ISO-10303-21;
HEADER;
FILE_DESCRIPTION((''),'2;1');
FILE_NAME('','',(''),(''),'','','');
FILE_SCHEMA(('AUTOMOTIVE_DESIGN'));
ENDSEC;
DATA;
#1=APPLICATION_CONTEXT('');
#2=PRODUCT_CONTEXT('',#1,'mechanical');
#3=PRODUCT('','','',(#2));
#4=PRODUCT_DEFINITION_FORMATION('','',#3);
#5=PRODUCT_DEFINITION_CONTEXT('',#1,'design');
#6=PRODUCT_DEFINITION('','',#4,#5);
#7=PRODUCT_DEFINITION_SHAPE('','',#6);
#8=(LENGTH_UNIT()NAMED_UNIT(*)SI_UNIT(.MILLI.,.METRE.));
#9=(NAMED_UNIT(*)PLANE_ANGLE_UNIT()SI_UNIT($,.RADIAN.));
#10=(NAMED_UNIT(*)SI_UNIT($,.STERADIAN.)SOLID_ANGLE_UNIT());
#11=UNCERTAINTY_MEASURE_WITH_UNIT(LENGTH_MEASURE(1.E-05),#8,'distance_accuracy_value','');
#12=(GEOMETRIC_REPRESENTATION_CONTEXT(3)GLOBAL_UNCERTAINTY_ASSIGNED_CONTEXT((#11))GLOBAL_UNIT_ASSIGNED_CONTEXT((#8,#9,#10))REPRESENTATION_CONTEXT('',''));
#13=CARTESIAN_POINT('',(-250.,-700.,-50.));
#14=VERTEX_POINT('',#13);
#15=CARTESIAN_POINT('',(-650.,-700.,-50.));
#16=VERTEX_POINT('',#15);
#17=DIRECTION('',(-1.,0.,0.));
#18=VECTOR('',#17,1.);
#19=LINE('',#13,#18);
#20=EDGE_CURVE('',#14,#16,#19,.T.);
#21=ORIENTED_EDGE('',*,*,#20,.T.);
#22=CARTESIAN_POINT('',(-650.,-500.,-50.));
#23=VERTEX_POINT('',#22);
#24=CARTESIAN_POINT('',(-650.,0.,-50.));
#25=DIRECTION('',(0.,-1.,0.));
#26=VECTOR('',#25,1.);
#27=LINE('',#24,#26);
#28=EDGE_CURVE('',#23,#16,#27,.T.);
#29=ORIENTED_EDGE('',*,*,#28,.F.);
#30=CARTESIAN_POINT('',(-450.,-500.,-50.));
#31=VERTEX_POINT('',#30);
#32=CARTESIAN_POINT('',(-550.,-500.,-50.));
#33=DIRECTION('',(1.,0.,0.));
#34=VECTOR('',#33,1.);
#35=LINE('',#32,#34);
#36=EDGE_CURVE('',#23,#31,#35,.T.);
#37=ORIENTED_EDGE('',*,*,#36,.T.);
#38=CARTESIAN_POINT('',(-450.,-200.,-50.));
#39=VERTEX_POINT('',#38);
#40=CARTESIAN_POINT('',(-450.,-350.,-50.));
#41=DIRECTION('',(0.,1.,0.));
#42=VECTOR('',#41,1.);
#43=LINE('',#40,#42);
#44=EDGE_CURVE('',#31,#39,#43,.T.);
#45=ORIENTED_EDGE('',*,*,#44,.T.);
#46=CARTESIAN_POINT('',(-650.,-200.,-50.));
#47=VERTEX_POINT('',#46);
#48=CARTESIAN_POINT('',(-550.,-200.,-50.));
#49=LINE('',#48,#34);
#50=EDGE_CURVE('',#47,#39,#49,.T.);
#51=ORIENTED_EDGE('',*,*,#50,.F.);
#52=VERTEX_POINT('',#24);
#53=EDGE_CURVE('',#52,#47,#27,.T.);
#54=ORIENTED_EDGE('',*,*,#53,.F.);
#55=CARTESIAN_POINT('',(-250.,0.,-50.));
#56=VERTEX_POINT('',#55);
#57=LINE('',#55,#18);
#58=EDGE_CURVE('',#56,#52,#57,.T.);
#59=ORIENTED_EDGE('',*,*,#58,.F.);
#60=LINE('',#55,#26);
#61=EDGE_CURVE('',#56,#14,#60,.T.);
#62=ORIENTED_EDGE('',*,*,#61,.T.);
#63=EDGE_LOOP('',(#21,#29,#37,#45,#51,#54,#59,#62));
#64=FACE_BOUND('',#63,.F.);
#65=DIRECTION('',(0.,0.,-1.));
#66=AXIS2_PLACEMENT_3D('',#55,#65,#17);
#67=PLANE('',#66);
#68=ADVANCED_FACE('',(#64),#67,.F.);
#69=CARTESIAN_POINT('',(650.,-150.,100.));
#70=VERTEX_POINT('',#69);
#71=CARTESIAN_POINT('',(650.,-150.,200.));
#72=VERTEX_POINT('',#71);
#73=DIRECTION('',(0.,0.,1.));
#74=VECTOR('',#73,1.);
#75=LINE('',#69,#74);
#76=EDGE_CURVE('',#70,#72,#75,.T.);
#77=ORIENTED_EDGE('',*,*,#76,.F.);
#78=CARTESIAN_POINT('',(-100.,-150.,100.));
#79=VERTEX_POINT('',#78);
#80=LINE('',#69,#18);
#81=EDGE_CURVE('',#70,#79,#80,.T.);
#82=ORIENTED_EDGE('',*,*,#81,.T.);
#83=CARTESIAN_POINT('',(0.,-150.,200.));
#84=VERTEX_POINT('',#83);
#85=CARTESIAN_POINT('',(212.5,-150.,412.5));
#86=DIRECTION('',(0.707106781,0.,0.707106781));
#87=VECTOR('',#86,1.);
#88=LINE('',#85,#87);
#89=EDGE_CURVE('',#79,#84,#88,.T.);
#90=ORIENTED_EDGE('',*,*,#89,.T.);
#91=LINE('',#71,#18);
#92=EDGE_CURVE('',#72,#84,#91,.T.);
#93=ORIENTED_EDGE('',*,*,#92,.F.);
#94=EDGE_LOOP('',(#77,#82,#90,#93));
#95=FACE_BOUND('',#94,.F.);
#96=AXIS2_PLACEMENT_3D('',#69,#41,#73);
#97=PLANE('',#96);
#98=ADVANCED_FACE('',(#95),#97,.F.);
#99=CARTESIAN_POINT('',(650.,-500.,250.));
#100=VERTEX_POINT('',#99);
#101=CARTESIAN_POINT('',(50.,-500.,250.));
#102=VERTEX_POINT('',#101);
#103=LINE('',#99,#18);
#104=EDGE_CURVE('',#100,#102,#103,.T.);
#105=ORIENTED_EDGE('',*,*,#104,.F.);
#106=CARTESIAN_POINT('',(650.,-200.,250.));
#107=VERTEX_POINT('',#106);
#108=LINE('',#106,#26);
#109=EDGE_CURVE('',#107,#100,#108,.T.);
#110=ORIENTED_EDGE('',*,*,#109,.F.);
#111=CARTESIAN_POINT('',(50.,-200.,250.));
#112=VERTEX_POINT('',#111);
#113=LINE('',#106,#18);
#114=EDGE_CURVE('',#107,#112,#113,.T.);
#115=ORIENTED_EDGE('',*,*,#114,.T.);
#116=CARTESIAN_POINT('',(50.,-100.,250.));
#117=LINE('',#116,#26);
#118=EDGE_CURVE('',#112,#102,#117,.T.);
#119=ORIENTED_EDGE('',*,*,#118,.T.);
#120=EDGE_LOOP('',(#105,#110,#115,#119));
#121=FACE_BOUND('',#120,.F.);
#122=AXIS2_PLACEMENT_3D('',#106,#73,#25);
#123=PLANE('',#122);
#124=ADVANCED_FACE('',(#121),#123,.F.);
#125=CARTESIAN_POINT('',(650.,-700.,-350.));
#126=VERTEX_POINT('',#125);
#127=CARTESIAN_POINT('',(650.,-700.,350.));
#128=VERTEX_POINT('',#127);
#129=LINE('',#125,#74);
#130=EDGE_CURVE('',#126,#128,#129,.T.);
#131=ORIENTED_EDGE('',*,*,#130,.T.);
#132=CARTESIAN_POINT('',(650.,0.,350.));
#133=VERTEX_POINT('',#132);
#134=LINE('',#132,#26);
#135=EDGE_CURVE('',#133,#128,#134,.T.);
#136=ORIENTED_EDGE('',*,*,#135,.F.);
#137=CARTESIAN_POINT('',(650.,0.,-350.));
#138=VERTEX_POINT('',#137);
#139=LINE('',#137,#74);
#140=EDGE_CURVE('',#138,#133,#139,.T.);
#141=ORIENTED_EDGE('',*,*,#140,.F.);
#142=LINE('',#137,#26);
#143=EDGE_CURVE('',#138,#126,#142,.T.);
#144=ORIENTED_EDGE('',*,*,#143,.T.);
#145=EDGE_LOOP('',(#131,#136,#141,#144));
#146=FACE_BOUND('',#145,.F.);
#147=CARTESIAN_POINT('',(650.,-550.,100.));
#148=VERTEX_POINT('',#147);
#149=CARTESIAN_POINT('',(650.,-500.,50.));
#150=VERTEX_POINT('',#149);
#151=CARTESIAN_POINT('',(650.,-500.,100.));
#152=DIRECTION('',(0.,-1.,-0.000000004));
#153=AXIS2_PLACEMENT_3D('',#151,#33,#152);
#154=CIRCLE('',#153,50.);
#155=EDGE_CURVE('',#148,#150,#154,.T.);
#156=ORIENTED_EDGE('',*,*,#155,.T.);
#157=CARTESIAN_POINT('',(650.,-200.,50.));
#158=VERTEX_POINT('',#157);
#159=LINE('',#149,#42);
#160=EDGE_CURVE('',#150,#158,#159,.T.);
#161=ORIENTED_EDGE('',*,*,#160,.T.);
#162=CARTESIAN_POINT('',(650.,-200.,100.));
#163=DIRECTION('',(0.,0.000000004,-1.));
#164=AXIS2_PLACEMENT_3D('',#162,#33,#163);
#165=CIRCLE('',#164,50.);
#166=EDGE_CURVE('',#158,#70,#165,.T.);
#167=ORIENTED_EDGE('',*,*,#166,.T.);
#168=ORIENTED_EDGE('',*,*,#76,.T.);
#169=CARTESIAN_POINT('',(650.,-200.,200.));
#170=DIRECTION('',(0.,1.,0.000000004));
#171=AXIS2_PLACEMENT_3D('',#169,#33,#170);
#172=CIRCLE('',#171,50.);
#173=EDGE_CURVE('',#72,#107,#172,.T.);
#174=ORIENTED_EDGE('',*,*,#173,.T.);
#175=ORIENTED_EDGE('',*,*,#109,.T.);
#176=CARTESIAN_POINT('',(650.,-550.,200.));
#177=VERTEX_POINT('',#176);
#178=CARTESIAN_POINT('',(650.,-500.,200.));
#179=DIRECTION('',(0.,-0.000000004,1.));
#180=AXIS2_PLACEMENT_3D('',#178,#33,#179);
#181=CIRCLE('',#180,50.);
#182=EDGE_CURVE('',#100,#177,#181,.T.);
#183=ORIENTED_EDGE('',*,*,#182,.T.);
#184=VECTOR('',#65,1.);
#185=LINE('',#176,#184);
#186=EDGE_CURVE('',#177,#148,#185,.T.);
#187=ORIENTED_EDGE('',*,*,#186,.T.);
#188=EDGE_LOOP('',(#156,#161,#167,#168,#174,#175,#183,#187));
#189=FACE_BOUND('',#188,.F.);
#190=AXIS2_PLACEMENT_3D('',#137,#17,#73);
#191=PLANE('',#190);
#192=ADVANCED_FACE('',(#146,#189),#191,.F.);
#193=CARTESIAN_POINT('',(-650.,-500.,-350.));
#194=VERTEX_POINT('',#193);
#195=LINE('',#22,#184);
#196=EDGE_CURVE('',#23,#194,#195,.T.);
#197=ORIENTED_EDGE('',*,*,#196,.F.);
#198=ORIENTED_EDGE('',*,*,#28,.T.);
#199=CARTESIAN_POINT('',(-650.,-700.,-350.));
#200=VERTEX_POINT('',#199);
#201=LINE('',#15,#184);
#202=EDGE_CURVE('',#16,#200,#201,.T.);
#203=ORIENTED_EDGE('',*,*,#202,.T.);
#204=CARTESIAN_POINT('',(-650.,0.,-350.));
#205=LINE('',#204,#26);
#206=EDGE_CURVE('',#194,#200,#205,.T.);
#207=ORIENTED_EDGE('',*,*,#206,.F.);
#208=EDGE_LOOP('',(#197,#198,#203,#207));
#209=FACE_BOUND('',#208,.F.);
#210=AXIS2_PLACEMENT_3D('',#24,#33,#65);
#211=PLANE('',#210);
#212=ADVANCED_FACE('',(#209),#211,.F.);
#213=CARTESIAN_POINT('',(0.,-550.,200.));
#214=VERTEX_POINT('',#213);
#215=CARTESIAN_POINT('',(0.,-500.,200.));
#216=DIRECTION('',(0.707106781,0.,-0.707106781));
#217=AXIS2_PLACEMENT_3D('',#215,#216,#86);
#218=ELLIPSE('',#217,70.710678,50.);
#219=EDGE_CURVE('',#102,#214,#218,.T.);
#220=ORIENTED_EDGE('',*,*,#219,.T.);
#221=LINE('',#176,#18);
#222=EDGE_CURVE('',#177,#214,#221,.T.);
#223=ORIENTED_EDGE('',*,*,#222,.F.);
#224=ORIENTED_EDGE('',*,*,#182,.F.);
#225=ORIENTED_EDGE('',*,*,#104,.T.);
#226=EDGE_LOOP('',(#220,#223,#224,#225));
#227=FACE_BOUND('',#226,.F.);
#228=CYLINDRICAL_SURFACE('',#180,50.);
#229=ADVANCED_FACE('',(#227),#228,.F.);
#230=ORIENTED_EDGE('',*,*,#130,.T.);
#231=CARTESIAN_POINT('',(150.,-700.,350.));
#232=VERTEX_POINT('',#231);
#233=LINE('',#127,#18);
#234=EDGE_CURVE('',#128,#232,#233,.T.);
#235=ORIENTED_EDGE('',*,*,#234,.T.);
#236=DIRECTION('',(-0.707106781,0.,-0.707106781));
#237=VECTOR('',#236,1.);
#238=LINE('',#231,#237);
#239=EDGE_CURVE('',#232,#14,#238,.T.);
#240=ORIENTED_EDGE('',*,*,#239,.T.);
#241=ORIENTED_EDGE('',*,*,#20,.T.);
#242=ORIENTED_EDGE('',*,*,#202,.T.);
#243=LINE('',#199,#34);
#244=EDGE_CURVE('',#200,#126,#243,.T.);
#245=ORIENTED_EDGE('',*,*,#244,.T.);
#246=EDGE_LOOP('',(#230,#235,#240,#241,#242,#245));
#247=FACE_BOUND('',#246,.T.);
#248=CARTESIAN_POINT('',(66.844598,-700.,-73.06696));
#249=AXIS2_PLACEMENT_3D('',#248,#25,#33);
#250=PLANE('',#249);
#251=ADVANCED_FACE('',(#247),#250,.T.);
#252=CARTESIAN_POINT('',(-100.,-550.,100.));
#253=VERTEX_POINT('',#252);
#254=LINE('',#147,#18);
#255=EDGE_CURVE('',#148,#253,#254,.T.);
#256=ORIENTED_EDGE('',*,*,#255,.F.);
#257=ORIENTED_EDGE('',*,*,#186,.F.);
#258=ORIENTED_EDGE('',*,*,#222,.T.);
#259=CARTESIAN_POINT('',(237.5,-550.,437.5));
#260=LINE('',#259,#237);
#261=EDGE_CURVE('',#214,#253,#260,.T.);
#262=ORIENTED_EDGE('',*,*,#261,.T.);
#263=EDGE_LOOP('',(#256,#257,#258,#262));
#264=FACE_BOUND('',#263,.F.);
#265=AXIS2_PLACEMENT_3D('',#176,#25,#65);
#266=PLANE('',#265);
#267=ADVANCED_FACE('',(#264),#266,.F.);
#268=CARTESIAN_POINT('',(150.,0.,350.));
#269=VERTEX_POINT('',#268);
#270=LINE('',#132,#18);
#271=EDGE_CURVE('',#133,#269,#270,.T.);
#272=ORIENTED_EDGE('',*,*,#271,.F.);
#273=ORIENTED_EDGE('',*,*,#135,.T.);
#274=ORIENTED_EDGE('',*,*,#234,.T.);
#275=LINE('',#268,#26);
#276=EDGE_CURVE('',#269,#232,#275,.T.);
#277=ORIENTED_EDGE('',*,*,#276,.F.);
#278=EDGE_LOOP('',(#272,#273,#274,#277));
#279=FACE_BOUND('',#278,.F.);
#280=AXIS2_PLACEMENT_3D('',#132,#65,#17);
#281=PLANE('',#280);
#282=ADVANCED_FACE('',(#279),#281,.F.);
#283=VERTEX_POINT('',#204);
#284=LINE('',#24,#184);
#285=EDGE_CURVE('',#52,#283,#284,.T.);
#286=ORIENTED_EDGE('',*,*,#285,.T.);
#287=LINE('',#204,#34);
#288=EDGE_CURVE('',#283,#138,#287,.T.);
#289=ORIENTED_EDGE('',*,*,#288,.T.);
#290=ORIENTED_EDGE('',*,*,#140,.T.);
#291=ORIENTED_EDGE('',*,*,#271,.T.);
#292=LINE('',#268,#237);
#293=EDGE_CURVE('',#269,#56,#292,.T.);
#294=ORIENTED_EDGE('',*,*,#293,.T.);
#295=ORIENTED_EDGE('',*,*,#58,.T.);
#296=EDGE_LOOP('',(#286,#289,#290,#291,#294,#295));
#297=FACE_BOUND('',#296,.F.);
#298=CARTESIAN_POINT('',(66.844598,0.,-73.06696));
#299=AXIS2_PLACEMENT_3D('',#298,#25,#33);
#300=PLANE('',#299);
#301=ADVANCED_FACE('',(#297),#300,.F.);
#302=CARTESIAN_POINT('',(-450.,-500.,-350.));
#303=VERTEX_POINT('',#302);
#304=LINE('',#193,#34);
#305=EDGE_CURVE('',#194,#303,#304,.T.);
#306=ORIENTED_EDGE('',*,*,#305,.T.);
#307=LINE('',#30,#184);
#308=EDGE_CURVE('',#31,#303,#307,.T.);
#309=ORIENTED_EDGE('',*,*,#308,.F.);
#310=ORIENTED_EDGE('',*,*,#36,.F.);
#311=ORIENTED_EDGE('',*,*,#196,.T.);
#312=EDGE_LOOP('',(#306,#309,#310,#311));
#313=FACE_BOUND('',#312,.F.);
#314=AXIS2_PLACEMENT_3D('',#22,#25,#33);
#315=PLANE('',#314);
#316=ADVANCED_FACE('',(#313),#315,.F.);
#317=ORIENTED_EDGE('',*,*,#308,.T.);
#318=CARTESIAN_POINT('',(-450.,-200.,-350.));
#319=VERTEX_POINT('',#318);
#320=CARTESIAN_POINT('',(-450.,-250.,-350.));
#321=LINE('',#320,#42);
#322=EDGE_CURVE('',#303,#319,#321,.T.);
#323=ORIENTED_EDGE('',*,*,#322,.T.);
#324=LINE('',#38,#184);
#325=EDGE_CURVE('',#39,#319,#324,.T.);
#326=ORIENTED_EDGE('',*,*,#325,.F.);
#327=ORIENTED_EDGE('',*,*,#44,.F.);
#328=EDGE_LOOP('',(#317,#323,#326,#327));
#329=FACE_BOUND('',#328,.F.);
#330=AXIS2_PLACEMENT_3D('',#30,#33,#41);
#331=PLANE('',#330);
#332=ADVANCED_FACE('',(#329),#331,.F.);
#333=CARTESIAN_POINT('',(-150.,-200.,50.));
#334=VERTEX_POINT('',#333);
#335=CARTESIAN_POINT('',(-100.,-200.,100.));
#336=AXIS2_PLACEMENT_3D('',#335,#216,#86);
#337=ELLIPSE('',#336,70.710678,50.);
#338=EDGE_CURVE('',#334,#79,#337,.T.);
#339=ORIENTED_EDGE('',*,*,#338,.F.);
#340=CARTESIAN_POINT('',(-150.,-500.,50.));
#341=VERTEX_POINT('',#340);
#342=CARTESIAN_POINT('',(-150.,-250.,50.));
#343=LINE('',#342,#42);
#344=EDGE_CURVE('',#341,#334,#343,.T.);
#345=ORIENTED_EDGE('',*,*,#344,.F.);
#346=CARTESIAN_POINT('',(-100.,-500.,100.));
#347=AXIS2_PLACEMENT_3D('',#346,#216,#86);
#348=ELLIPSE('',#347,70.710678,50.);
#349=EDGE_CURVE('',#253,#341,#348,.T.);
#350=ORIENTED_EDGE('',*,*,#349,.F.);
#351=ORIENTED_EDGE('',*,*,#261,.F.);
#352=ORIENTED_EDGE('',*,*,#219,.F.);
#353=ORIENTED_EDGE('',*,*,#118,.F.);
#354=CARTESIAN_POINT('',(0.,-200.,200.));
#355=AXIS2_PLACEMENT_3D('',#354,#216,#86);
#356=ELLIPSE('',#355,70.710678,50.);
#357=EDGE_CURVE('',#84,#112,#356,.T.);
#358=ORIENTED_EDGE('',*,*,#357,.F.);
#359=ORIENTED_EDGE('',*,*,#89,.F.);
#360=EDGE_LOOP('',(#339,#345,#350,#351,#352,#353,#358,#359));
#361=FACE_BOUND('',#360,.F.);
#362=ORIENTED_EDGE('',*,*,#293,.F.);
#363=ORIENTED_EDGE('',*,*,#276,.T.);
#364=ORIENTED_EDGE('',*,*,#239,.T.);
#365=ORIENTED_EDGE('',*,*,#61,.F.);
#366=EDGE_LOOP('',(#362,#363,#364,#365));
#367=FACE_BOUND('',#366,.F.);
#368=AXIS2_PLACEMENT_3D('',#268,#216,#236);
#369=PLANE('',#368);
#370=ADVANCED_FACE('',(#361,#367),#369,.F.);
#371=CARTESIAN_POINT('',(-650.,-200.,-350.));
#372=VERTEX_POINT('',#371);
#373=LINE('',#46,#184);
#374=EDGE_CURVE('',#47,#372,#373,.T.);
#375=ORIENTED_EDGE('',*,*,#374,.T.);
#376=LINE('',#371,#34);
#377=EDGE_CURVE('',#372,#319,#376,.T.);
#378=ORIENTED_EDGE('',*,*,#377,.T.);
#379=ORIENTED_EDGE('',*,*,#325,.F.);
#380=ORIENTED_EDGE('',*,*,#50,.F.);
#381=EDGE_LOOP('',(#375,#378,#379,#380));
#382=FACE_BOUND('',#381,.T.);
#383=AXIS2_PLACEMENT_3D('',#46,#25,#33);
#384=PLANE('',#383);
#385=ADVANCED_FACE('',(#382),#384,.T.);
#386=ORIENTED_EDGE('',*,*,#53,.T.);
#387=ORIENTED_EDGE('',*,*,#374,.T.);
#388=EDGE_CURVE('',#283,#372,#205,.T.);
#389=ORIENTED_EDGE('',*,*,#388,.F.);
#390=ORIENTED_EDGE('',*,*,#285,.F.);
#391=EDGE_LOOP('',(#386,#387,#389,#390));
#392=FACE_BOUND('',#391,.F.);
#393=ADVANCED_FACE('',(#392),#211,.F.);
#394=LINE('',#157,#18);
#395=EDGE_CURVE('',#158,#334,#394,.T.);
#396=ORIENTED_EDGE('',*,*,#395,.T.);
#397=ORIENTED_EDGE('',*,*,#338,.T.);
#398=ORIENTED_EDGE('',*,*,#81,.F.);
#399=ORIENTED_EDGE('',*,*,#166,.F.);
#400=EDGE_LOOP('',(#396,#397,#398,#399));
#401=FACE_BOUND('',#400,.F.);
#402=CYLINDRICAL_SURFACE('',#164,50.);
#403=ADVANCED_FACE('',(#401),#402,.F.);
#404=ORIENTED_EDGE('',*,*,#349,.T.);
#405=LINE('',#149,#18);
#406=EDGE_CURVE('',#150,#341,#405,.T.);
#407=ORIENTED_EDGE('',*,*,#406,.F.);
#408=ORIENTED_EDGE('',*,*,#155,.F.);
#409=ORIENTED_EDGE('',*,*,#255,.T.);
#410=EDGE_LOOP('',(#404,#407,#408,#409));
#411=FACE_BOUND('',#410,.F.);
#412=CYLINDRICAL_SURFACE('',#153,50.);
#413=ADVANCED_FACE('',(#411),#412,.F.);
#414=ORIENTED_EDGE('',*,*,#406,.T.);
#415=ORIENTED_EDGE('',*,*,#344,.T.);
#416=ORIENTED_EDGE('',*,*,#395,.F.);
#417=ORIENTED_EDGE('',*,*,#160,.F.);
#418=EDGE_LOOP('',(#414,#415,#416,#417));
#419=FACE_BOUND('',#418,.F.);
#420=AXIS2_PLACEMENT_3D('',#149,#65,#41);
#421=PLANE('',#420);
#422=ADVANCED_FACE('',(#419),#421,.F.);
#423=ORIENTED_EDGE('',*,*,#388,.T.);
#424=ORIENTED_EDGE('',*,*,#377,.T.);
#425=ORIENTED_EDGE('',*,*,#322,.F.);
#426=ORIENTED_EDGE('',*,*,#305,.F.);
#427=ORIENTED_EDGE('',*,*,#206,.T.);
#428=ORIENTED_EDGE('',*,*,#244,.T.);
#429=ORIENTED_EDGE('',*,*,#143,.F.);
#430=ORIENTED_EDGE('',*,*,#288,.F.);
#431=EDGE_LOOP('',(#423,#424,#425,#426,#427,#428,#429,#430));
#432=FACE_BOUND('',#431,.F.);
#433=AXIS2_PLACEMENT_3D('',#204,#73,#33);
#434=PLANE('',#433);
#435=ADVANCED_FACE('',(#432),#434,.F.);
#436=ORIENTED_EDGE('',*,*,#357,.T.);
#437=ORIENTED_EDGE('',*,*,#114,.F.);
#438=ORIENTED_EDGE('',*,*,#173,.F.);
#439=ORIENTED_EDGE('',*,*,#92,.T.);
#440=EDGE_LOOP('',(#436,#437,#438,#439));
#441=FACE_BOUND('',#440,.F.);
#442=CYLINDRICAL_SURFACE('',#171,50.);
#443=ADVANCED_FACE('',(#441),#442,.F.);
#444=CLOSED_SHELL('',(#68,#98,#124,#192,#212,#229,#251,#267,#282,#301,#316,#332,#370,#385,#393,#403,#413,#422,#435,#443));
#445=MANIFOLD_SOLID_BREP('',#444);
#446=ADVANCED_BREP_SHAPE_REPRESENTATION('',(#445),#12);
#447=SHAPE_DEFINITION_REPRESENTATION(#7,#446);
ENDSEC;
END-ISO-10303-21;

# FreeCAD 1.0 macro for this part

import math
import FreeCAD as App
import Part
import Sketcher


def add_polygon(sketch, points):
    """Adds a closed chain of lines whose ends are joined by coincident constraints."""
    first, n = sketch.GeometryCount, len(points)
    for a, b in zip(points, points[1:] + points[:1]):
        sketch.addGeometry(Part.LineSegment(App.Vector(*a, 0), App.Vector(*b, 0)), False)
    for i in range(n):
        sketch.addConstraint(Sketcher.Constraint("Coincident", first + i, 2, first + (i + 1) % n, 1))

doc = App.newDocument("Part")
body = doc.addObject("PartDesign::Body", "Body")

# Sketch on XZ plane
sketch1 = body.newObject("Sketcher::SketchObject", "Sketch")
sketch1.AttachmentSupport = (doc.getObject("XZ_Plane"), [""])
sketch1.MapMode = "FlatFace"
add_polygon(sketch1, [(650, 350), (150, 350), (-250, -50), (-650, -50), (-650, -350), (650, -350)])  # lines 0-5
sketch1.addConstraint([
    Sketcher.Constraint("Horizontal", 0),
    Sketcher.Constraint("Horizontal", 2),
    Sketcher.Constraint("Vertical", 3),
    Sketcher.Constraint("Horizontal", 4),
    Sketcher.Constraint("Vertical", 5),
    Sketcher.Constraint("Symmetric", 3, 2, 5, 2, -1, 1),
    Sketcher.Constraint("DistanceX", 0, 2, 0, 1, 500.0),
    Sketcher.Constraint("DistanceX", 2, 2, 2, 1, 400.0),
    Sketcher.Constraint("DistanceX", 4, 1, 4, 2, 1300.0),
    Sketcher.Constraint("DistanceY", 3, 2, 3, 1, 300.0),
    Sketcher.Constraint("DistanceY", 5, 1, 5, 2, 700.0),
])
pad1 = body.newObject("PartDesign::Pad", "Pad")
pad1.Profile = sketch1
pad1.Length = 700

# Sketch on YZ plane
sketch2 = body.newObject("Sketcher::SketchObject", "Sketch001")
sketch2.AttachmentSupport = (doc.getObject("YZ_Plane"), [""])
sketch2.MapMode = "FlatFace"
sketch2.AttachmentOffset = App.Placement(App.Vector(0, 0, 650), App.Rotation())
sketch2.addGeometry([
    Part.LineSegment(App.Vector(-200, 250, 0), App.Vector(-500, 250, 0)),  # 0
    Part.ArcOfCircle(Part.Circle(App.Vector(-500, 200, 0), App.Vector(0, 0, 1), 50), math.radians(90), math.radians(180)),  # 1
    Part.LineSegment(App.Vector(-550, 200, 0), App.Vector(-550, 100, 0)),  # 2
    Part.ArcOfCircle(Part.Circle(App.Vector(-500, 100, 0), App.Vector(0, 0, 1), 50), math.radians(-180), math.radians(-90)),  # 3
    Part.LineSegment(App.Vector(-500, 50, 0), App.Vector(-200, 50, 0)),  # 4
    Part.ArcOfCircle(Part.Circle(App.Vector(-200, 100, 0), App.Vector(0, 0, 1), 50), math.radians(-90), math.radians(0)),  # 5
    Part.LineSegment(App.Vector(-150, 100, 0), App.Vector(-150, 200, 0)),  # 6
    Part.ArcOfCircle(Part.Circle(App.Vector(-200, 200, 0), App.Vector(0, 0, 1), 50), math.radians(0), math.radians(90)),  # 7
], False)
sketch2.addConstraint([
    Sketcher.Constraint("Tangent", 0, 2, 1, 1),
    Sketcher.Constraint("Tangent", 1, 2, 2, 1),
    Sketcher.Constraint("Tangent", 2, 2, 3, 1),
    Sketcher.Constraint("Tangent", 3, 2, 4, 1),
    Sketcher.Constraint("Tangent", 4, 2, 5, 1),
    Sketcher.Constraint("Tangent", 5, 2, 6, 1),
    Sketcher.Constraint("Tangent", 6, 2, 7, 1),
    Sketcher.Constraint("Tangent", 7, 2, 0, 1),
    Sketcher.Constraint("Horizontal", 0),
    Sketcher.Constraint("Vertical", 2),
    Sketcher.Constraint("Horizontal", 4),
    Sketcher.Constraint("Vertical", 6),
    Sketcher.Constraint("Equal", 1, 3),
    Sketcher.Constraint("Equal", 3, 5),
    Sketcher.Constraint("Equal", 5, 7),
    Sketcher.Constraint("Radius", 1, 50.0),
    Sketcher.Constraint("DistanceX", 0, 2, 0, 1, 300.0),
    Sketcher.Constraint("DistanceY", 2, 2, 2, 1, 100.0),
    Sketcher.Constraint("DistanceX", 1, 3, -1, 1, 500.0),
    Sketcher.Constraint("DistanceY", -1, 1, 1, 3, 200.0),
])
pocket1 = body.newObject("PartDesign::Pocket", "Pocket")
pocket1.Profile = sketch2
pocket1.Type = "ThroughAll"

# Sketch on XY plane
sketch3 = body.newObject("Sketcher::SketchObject", "Sketch002")
sketch3.AttachmentSupport = (doc.getObject("XY_Plane"), [""])
sketch3.MapMode = "FlatFace"
sketch3.AttachmentOffset = App.Placement(App.Vector(0, 0, -50), App.Rotation())
add_polygon(sketch3, [(-650, -200), (-650, -500), (-450, -500), (-450, -200)])  # lines 0-3
sketch3.addConstraint([
    Sketcher.Constraint("Vertical", 0),
    Sketcher.Constraint("Horizontal", 1),
    Sketcher.Constraint("Vertical", 2),
    Sketcher.Constraint("Horizontal", 3),
    Sketcher.Constraint("DistanceX", 1, 1, 1, 2, 200.0),
    Sketcher.Constraint("DistanceY", 0, 2, 0, 1, 300.0),
    Sketcher.Constraint("DistanceX", 0, 2, -1, 1, 650.0),
    Sketcher.Constraint("DistanceY", 0, 2, -1, 1, 500.0),
])
pocket2 = body.newObject("PartDesign::Pocket", "Pocket001")
pocket2.Profile = sketch3
pocket2.Type = "ThroughAll"

doc.recompute()
